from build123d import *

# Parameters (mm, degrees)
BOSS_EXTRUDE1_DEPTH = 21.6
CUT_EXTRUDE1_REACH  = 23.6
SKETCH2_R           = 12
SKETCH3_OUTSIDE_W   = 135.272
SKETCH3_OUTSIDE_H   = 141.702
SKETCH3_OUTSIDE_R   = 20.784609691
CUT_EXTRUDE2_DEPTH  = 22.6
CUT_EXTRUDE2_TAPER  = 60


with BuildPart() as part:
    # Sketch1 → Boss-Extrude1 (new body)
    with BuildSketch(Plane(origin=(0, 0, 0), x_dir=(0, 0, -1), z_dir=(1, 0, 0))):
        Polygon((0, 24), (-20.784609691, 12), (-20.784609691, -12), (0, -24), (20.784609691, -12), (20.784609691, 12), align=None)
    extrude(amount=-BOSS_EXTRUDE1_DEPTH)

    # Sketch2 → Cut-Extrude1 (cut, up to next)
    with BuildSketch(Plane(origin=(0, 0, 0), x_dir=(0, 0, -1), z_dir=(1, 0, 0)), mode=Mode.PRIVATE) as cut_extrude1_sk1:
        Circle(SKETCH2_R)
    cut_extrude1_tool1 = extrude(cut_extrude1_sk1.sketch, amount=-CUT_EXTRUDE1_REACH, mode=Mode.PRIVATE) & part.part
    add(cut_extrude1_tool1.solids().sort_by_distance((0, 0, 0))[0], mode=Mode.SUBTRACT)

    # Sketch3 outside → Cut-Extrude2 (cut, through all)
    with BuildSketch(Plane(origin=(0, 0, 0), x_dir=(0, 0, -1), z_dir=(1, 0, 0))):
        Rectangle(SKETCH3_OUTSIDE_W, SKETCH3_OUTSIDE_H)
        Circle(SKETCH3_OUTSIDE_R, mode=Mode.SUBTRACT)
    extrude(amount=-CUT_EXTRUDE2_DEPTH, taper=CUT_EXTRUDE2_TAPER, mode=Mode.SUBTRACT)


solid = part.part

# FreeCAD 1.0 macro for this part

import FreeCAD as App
import Part
import Sketcher
from FreeCAD import Vector
Q = App.Units.Quantity

doc = App.newDocument("Part")
params = doc.addObject("Spreadsheet::Sheet", "Params")
for row, (alias, value) in enumerate([
    ("sketch1_width", "24 mm"),
    ("sketch1_length", "24 mm"),
    ("pad1_length", "21.6 mm"),
    ("sketch2_diameter", "24 mm"),
    ("pocket2_length", "22.6 mm"),
    ("pocket2_taper", "60 deg"),
], start=1):
    params.set(f"A{row}", alias)
    params.set(f"B{row}", "=" + value)
    params.setAlias(f"B{row}", alias)

body = doc.addObject("PartDesign::Body", "Body")

sketch1 = body.newObject("Sketcher::SketchObject", "Sketch")
sketch1.AttachmentSupport = (doc.getObject("YZ_Plane"), [""])
sketch1.MapMode = "FlatFace"
sketch1.addGeometry(Part.LineSegment(Vector(24, 0, 0), Vector(12, 20.78461, 0)), False)
sketch1.addGeometry(Part.LineSegment(Vector(12, 20.78461, 0), Vector(-12, 20.78461, 0)), False)
sketch1.addGeometry(Part.LineSegment(Vector(-12, 20.78461, 0), Vector(-24, 0, 0)), False)
sketch1.addGeometry(Part.LineSegment(Vector(-24, 0, 0), Vector(-12, -20.78461, 0)), False)
sketch1.addGeometry(Part.LineSegment(Vector(-12, -20.78461, 0), Vector(12, -20.78461, 0)), False)
sketch1.addGeometry(Part.LineSegment(Vector(12, -20.78461, 0), Vector(24, 0, 0)), False)
sketch1.addConstraint(Sketcher.Constraint("Coincident", 0, 2, 1, 1))
sketch1.addConstraint(Sketcher.Constraint("Coincident", 1, 2, 2, 1))
sketch1.addConstraint(Sketcher.Constraint("Coincident", 2, 2, 3, 1))
sketch1.addConstraint(Sketcher.Constraint("Coincident", 3, 2, 4, 1))
sketch1.addConstraint(Sketcher.Constraint("Coincident", 4, 2, 5, 1))
sketch1.addConstraint(Sketcher.Constraint("Coincident", 5, 2, 0, 1))
sketch1.addConstraint(Sketcher.Constraint("Horizontal", 1))
sketch1.addConstraint(Sketcher.Constraint("Horizontal", 4))
sketch1.addConstraint(Sketcher.Constraint("Symmetric", 0, 2, 3, 2, -1, 1))
sketch1.addConstraint(Sketcher.Constraint("Symmetric", 2, 2, 5, 2, -1, 1))
sketch1.addConstraint(Sketcher.Constraint("PointOnObject", 2, 2, -1))
sketch1.addConstraint(Sketcher.Constraint("Parallel", 2, 5))
sketch1.addConstraint(Sketcher.Constraint("Vertical", 1, 2, 3, 2))
sketch1.addConstraint(Sketcher.Constraint("DistanceX", 1, 2, 1, 1, Q("24 mm")))
sketch1.addConstraint(Sketcher.Constraint("Angle", 0, Q("120 deg")))
sketch1.addConstraint(Sketcher.Constraint("Distance", 0, Q("24 mm")))
sketch1.setExpression("Constraints[13]", "Params.sketch1_width")
sketch1.setExpression("Constraints[15]", "Params.sketch1_length")
pad1 = body.newObject("PartDesign::Pad", "Pad")
pad1.Profile = sketch1
pad1.setExpression("Length", "Params.pad1_length")
pad1.Reversed = True

sketch2 = body.newObject("Sketcher::SketchObject", "Sketch001")
sketch2.AttachmentSupport = (doc.getObject("YZ_Plane"), [""])
sketch2.MapMode = "FlatFace"
sketch2.addGeometry(Part.Circle(Vector(0, 0, 0), Vector(0, 0, 1), 12), False)
sketch2.addConstraint(Sketcher.Constraint("Coincident", 0, 3, -1, 1))
sketch2.addConstraint(Sketcher.Constraint("Diameter", 0, Q("24 mm")))
sketch2.setExpression("Constraints[1]", "Params.sketch2_diameter")
pocket1 = body.newObject("PartDesign::Pocket", "Pocket")
pocket1.Profile = sketch2
pocket1.Type = "UpToFirst"

sketch3 = body.newObject("Sketcher::SketchObject", "Sketch002")
sketch3.AttachmentSupport = (doc.getObject("YZ_Plane"), [""])
sketch3.MapMode = "FlatFace"
sketch3.addGeometry(Part.LineSegment(Vector(70.851, 67.636, 0), Vector(-70.851, 67.636, 0)), False)
sketch3.addGeometry(Part.LineSegment(Vector(-70.851, 67.636, 0), Vector(-70.851, -67.636, 0)), False)
sketch3.addGeometry(Part.LineSegment(Vector(-70.851, -67.636, 0), Vector(70.851, -67.636, 0)), False)
sketch3.addGeometry(Part.LineSegment(Vector(70.851, -67.636, 0), Vector(70.851, 67.636, 0)), False)
sketch3.addGeometry(Part.Circle(Vector(0, 0, 0), Vector(0, 0, 1), 20.78461), False)
sketch3.addConstraint(Sketcher.Constraint("Coincident", 0, 2, 1, 1))
sketch3.addConstraint(Sketcher.Constraint("Coincident", 1, 2, 2, 1))
sketch3.addConstraint(Sketcher.Constraint("Coincident", 2, 2, 3, 1))
sketch3.addConstraint(Sketcher.Constraint("Coincident", 3, 2, 0, 1))
sketch3.addConstraint(Sketcher.Constraint("Horizontal", 0))
sketch3.addConstraint(Sketcher.Constraint("Vertical", 1))
sketch3.addConstraint(Sketcher.Constraint("Horizontal", 2))
sketch3.addConstraint(Sketcher.Constraint("Vertical", 3))
sketch3.addConstraint(Sketcher.Constraint("Coincident", 4, 3, -1, 1))
sketch3.addConstraint(Sketcher.Constraint("Symmetric", 0, 2, 2, 2, -1, 1))
sketch3.addConstraint(Sketcher.Constraint("Diameter", 4, Q("41.569219 mm")))
sketch3.addConstraint(Sketcher.Constraint("DistanceX", 0, 2, 0, 1, Q("141.702 mm")))
sketch3.addConstraint(Sketcher.Constraint("DistanceY", 1, 2, 1, 1, Q("135.272 mm")))
pocket2 = body.newObject("PartDesign::Pocket", "Pocket001")
pocket2.Profile = sketch3
pocket2.setExpression("Length", "Params.pocket2_length")
pocket2.setExpression("TaperAngle", "Params.pocket2_taper")

doc.recompute()
